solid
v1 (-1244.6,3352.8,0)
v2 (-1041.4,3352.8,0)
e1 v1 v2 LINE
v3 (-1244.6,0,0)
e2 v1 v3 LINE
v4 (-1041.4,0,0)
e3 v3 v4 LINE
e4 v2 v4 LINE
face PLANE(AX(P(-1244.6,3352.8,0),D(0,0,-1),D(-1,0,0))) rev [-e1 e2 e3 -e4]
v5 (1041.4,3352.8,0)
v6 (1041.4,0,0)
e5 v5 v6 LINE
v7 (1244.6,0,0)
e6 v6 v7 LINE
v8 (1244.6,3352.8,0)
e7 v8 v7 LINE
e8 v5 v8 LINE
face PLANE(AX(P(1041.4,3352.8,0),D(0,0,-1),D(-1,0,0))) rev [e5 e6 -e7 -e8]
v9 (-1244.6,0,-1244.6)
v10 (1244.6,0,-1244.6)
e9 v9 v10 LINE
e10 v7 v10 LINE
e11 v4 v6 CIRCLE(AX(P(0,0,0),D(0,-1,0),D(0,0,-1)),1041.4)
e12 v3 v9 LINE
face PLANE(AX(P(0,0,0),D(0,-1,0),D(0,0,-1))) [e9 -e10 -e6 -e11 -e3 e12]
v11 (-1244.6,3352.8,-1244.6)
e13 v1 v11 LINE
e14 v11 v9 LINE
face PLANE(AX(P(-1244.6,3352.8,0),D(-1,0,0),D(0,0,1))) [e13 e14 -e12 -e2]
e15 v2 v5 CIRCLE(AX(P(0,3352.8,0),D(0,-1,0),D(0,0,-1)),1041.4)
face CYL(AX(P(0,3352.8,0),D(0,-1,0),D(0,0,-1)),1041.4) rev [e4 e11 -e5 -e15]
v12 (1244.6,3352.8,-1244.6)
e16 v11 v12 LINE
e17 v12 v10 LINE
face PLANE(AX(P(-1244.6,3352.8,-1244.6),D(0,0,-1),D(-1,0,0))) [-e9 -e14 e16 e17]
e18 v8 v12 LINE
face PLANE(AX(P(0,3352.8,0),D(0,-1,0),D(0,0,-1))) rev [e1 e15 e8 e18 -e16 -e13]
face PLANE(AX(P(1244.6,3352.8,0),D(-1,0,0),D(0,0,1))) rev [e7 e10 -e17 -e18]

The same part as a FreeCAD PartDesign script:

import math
import FreeCAD as App
import Part
import Sketcher
Q = App.Units.Quantity

doc = App.newDocument("Part")
body = doc.addObject("PartDesign::Body", "Body")

sketch1 = doc.addObject("Sketcher::SketchObject", "Sketch")
body.addObject(sketch1)
sketch1.AttachmentSupport = (doc.XZ_Plane, [""])
sketch1.MapMode = "FlatFace"
sketch1.addGeometry([
    Part.LineSegment(App.Vector(-1244.6, 0, 0), App.Vector(-1041.4, 0, 0)),
    Part.ArcOfCircle(Part.Circle(App.Vector(0, 0, 0), App.Vector(0, 0, 1), 1041.4), math.radians(180), math.radians(360)),
    Part.LineSegment(App.Vector(1041.4, 0, 0), App.Vector(1244.6, 0, 0)),
    Part.LineSegment(App.Vector(1244.6, 0, 0), App.Vector(1244.6, -1244.6, 0)),
    Part.LineSegment(App.Vector(1244.6, -1244.6, 0), App.Vector(-1244.6, -1244.6, 0)),
    Part.LineSegment(App.Vector(-1244.6, -1244.6, 0), App.Vector(-1244.6, 0, 0)),
], False)
sketch1.addConstraint([
    Sketcher.Constraint("Coincident", 0, 2, 1, 1),
    Sketcher.Constraint("Coincident", 1, 2, 2, 1),
    Sketcher.Constraint("Coincident", 2, 2, 3, 1),
    Sketcher.Constraint("Coincident", 3, 2, 4, 1),
    Sketcher.Constraint("Coincident", 4, 2, 5, 1),
    Sketcher.Constraint("Coincident", 5, 2, 0, 1),
    Sketcher.Constraint("Horizontal", 0),
    Sketcher.Constraint("Horizontal", 2),
    Sketcher.Constraint("Vertical", 3),
    Sketcher.Constraint("Horizontal", 4),
    Sketcher.Constraint("Vertical", 5),
    Sketcher.Constraint("Coincident", 1, 3, -1, 1),
    Sketcher.Constraint("Symmetric", 2, 2, 5, 2, -1, 1),
    Sketcher.Constraint("PointOnObject", 0, 2, -1),
    Sketcher.Constraint("Radius", 1, Q("41 in")),
    Sketcher.Constraint("DistanceX", 0, 1, 0, 2, Q("8 in")),
    Sketcher.Constraint("DistanceY", 3, 2, 3, 1, Q("49 in")),
])
pad1 = doc.addObject("PartDesign::Pad", "Pad")
body.addObject(pad1)
pad1.Profile = sketch1
pad1.Length = Q("132 in")
pad1.Reversed = True

doc.recompute()
